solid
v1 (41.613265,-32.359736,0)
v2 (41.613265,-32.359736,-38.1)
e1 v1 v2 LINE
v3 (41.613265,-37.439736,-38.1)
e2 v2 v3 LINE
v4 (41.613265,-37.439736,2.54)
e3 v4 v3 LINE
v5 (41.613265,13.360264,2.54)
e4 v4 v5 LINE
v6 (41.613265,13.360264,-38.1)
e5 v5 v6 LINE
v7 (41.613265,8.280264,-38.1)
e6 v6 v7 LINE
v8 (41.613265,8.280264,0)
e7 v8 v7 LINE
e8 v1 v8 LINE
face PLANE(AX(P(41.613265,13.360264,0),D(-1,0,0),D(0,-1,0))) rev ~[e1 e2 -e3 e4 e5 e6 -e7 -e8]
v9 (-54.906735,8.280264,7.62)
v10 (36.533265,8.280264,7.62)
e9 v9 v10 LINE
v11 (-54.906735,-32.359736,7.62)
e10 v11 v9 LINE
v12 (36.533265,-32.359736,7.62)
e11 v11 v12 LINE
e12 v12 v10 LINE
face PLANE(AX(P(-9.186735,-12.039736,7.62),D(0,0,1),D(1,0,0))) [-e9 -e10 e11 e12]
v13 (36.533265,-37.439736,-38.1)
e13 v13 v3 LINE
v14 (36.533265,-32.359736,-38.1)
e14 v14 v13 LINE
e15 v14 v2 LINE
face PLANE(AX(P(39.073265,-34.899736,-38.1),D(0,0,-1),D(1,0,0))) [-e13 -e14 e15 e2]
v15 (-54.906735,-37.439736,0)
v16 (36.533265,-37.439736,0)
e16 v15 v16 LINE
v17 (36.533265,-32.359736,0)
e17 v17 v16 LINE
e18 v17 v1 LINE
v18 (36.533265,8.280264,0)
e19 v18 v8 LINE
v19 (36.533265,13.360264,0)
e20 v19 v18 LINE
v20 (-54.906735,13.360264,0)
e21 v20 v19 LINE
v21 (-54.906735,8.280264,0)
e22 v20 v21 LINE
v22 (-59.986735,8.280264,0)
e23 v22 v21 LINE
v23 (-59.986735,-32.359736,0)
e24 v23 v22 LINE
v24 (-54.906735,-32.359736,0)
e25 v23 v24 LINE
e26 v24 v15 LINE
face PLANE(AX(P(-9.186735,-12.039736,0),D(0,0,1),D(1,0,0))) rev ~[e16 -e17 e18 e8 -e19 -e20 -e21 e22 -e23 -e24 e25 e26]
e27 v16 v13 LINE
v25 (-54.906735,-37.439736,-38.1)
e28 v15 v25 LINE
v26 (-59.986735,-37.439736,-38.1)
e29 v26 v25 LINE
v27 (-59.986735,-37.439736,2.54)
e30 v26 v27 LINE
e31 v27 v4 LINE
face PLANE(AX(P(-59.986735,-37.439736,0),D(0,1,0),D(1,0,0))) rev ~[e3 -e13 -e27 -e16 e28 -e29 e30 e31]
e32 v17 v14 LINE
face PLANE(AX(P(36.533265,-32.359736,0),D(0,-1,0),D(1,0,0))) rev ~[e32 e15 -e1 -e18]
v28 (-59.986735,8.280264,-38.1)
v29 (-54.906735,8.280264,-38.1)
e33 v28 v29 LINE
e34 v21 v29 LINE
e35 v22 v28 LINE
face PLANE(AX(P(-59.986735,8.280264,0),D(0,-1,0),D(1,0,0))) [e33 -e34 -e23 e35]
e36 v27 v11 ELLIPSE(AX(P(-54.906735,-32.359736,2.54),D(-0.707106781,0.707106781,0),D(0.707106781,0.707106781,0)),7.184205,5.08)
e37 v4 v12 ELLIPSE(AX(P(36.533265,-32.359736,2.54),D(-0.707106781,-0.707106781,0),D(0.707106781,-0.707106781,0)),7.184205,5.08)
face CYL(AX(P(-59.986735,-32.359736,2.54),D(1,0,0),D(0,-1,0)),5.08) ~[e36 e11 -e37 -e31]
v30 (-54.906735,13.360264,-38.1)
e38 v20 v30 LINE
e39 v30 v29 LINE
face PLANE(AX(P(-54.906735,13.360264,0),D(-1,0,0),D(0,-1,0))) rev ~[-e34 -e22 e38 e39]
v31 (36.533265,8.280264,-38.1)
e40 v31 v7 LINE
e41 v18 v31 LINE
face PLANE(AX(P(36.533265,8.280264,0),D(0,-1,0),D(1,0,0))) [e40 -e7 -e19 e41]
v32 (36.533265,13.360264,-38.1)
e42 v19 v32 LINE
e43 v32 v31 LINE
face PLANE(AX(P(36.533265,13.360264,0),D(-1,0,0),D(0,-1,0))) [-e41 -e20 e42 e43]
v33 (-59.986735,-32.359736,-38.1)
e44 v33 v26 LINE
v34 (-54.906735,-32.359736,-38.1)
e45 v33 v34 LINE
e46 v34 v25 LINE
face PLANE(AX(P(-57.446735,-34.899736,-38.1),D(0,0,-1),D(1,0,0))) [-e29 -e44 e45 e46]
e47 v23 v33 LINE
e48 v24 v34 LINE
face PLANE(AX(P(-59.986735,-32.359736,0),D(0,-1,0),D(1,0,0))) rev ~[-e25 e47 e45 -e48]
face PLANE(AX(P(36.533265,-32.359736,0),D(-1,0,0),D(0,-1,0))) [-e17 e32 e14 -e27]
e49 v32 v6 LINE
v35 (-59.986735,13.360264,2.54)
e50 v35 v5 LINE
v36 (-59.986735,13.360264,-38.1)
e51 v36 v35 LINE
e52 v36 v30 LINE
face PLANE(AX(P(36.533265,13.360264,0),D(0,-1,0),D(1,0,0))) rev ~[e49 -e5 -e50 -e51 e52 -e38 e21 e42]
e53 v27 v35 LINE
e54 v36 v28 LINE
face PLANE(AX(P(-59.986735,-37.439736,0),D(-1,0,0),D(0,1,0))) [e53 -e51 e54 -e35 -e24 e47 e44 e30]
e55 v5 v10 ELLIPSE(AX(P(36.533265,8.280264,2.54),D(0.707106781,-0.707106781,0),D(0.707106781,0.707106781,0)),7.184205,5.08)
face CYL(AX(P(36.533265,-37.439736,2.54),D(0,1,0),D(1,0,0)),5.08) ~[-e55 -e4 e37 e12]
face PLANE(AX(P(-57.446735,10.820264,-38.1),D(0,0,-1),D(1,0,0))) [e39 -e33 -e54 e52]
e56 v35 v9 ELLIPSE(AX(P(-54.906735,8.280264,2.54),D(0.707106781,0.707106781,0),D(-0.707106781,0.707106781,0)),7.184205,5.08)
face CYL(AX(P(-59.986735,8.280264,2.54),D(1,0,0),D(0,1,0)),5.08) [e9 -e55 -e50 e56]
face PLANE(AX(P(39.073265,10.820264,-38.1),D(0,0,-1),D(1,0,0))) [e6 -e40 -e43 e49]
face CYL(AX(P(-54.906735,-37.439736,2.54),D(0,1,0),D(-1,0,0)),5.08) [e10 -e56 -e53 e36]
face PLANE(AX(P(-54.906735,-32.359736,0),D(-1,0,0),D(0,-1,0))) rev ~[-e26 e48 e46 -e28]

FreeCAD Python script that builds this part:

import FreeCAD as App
import Part
import Sketcher

V = App.Vector
Q = App.Units.Quantity


def edges_at(feature, points):
    """Names of the edges that pass closest to the given points."""
    edges = feature.Shape.Edges
    near = lambda p: min(range(len(edges)), key=lambda i: edges[i].distToShape(Part.Vertex(*p))[0])
    return sorted({f"Edge{near(p) + 1}" for p in points})

doc = App.newDocument("Part")
body = doc.addObject("PartDesign::Body", "Body")

sketch1 = body.newObject("Sketcher::SketchObject", "Sketch")
sketch1.AttachmentSupport = (doc.getObject("XY_Plane"), [""])
sketch1.MapMode = "FlatFace"
sketch1.addGeometry(Part.LineSegment(V(-59.986735, 13.360264, 0), V(-59.986735, -37.439736, 0)), False)
sketch1.addGeometry(Part.LineSegment(V(-59.986735, -37.439736, 0), V(41.613265, -37.439736, 0)), False)
sketch1.addGeometry(Part.LineSegment(V(41.613265, -37.439736, 0), V(41.613265, 13.360264, 0)), False)
sketch1.addGeometry(Part.LineSegment(V(41.613265, 13.360264, 0), V(-59.986735, 13.360264, 0)), False)
sketch1.addConstraint(Sketcher.Constraint("Coincident", 0, 2, 1, 1))
sketch1.addConstraint(Sketcher.Constraint("Coincident", 1, 2, 2, 1))
sketch1.addConstraint(Sketcher.Constraint("Coincident", 2, 2, 3, 1))
sketch1.addConstraint(Sketcher.Constraint("Coincident", 3, 2, 0, 1))
sketch1.addConstraint(Sketcher.Constraint("Vertical", 0))
sketch1.addConstraint(Sketcher.Constraint("Horizontal", 1))
sketch1.addConstraint(Sketcher.Constraint("Vertical", 2))
sketch1.addConstraint(Sketcher.Constraint("Horizontal", 3))
sketch1.addConstraint(Sketcher.Constraint("DistanceX", 1, 1, 1, 2, Q("4 in")))
sketch1.addConstraint(Sketcher.Constraint("DistanceY", 0, 2, 0, 1, Q("2 in")))
sketch1.addConstraint(Sketcher.Constraint("DistanceX", 0, 2, -1, 1, 59.986735))
sketch1.addConstraint(Sketcher.Constraint("DistanceY", 0, 2, -1, 1, 37.439736))
pad1 = body.newObject("PartDesign::Pad", "Pad")
pad1.Profile = sketch1
pad1.Length = Q("0.3 in")
doc.recompute()

fillet = body.newObject("PartDesign::Fillet", "Fillet")
fillet.Base = (pad1, edges_at(pad1, [
    (-9.187, -37.44, 7.62),
    (-59.987, -12.04, 7.62),
    (-9.187, 13.36, 7.62),
    (41.613, -12.04, 7.62),
]))
fillet.Radius = Q("0.2 in")

sketch2 = body.newObject("Sketcher::SketchObject", "Sketch001")
sketch2.AttachmentSupport = (doc.getObject("XY_Plane"), [""])
sketch2.MapMode = "FlatFace"
sketch2.addGeometry(Part.LineSegment(V(36.533265, 8.280264, 0), V(36.533265, 13.360264, 0)), False)
sketch2.addGeometry(Part.LineSegment(V(36.533265, 13.360264, 0), V(41.613265, 13.360264, 0)), False)
sketch2.addGeometry(Part.LineSegment(V(41.613265, 13.360264, 0), V(41.613265, 8.280264, 0)), False)
sketch2.addGeometry(Part.LineSegment(V(41.613265, 8.280264, 0), V(36.533265, 8.280264, 0)), False)
sketch2.addGeometry(Part.LineSegment(V(36.533265, -37.439736, 0), V(36.533265, -32.359736, 0)), False)
sketch2.addGeometry(Part.LineSegment(V(36.533265, -32.359736, 0), V(41.613265, -32.359736, 0)), False)
sketch2.addGeometry(Part.LineSegment(V(41.613265, -32.359736, 0), V(41.613265, -37.439736, 0)), False)
sketch2.addGeometry(Part.LineSegment(V(41.613265, -37.439736, 0), V(36.533265, -37.439736, 0)), False)
sketch2.addGeometry(Part.LineSegment(V(-59.986735, 8.280264, 0), V(-59.986735, 13.360264, 0)), False)
sketch2.addGeometry(Part.LineSegment(V(-59.986735, 13.360264, 0), V(-54.906735, 13.360264, 0)), False)
sketch2.addGeometry(Part.LineSegment(V(-54.906735, 13.360264, 0), V(-54.906735, 8.280264, 0)), False)
sketch2.addGeometry(Part.LineSegment(V(-54.906735, 8.280264, 0), V(-59.986735, 8.280264, 0)), False)
sketch2.addGeometry(Part.LineSegment(V(-59.986735, -37.439736, 0), V(-59.986735, -32.359736, 0)), False)
sketch2.addGeometry(Part.LineSegment(V(-59.986735, -32.359736, 0), V(-54.906735, -32.359736, 0)), False)
sketch2.addGeometry(Part.LineSegment(V(-54.906735, -32.359736, 0), V(-54.906735, -37.439736, 0)), False)
sketch2.addGeometry(Part.LineSegment(V(-54.906735, -37.439736, 0), V(-59.986735, -37.439736, 0)), False)
sketch2.addConstraint(Sketcher.Constraint("Coincident", 0, 2, 1, 1))
sketch2.addConstraint(Sketcher.Constraint("Coincident", 1, 2, 2, 1))
sketch2.addConstraint(Sketcher.Constraint("Coincident", 2, 2, 3, 1))
sketch2.addConstraint(Sketcher.Constraint("Coincident", 3, 2, 0, 1))
sketch2.addConstraint(Sketcher.Constraint("Coincident", 4, 2, 5, 1))
sketch2.addConstraint(Sketcher.Constraint("Coincident", 5, 2, 6, 1))
sketch2.addConstraint(Sketcher.Constraint("Coincident", 6, 2, 7, 1))
sketch2.addConstraint(Sketcher.Constraint("Coincident", 7, 2, 4, 1))
sketch2.addConstraint(Sketcher.Constraint("Coincident", 8, 2, 9, 1))
sketch2.addConstraint(Sketcher.Constraint("Coincident", 9, 2, 10, 1))
sketch2.addConstraint(Sketcher.Constraint("Coincident", 10, 2, 11, 1))
sketch2.addConstraint(Sketcher.Constraint("Coincident", 11, 2, 8, 1))
sketch2.addConstraint(Sketcher.Constraint("Coincident", 12, 2, 13, 1))
sketch2.addConstraint(Sketcher.Constraint("Coincident", 13, 2, 14, 1))
sketch2.addConstraint(Sketcher.Constraint("Coincident", 14, 2, 15, 1))
sketch2.addConstraint(Sketcher.Constraint("Coincident", 15, 2, 12, 1))
sketch2.addConstraint(Sketcher.Constraint("Vertical", 0))
sketch2.addConstraint(Sketcher.Constraint("Horizontal", 1))
sketch2.addConstraint(Sketcher.Constraint("Vertical", 2))
sketch2.addConstraint(Sketcher.Constraint("Horizontal", 3))
sketch2.addConstraint(Sketcher.Constraint("Vertical", 4))
sketch2.addConstraint(Sketcher.Constraint("Horizontal", 5))
sketch2.addConstraint(Sketcher.Constraint("Vertical", 6))
sketch2.addConstraint(Sketcher.Constraint("Horizontal", 7))
sketch2.addConstraint(Sketcher.Constraint("Vertical", 8))
sketch2.addConstraint(Sketcher.Constraint("Horizontal", 9))
sketch2.addConstraint(Sketcher.Constraint("Vertical", 10))
sketch2.addConstraint(Sketcher.Constraint("Horizontal", 11))
sketch2.addConstraint(Sketcher.Constraint("Vertical", 12))
sketch2.addConstraint(Sketcher.Constraint("Horizontal", 13))
sketch2.addConstraint(Sketcher.Constraint("Vertical", 14))
sketch2.addConstraint(Sketcher.Constraint("Horizontal", 15))
sketch2.addConstraint(Sketcher.Constraint("Horizontal", 1, 2, 8, 2))
sketch2.addConstraint(Sketcher.Constraint("Horizontal", 3, 2, 10, 2))
sketch2.addConstraint(Sketcher.Constraint("Horizontal", 5, 2, 12, 2))
sketch2.addConstraint(Sketcher.Constraint("Horizontal", 7, 2, 14, 2))
sketch2.addConstraint(Sketcher.Constraint("Vertical", 3, 2, 4, 2))
sketch2.addConstraint(Sketcher.Constraint("Vertical", 2, 2, 5, 2))
sketch2.addConstraint(Sketcher.Constraint("Vertical", 11, 2, 12, 2))
sketch2.addConstraint(Sketcher.Constraint("Vertical", 10, 2, 13, 2))
sketch2.addConstraint(Sketcher.Constraint("Equal", 7, 9))
sketch2.addConstraint(Sketcher.Constraint("Equal", 15, 0))
sketch2.addConstraint(Sketcher.Constraint("Equal", 2, 4))
sketch2.addConstraint(Sketcher.Constraint("DistanceX", 1, 1, 1, 2, Q("0.2 in")))
sketch2.addConstraint(Sketcher.Constraint("DistanceY", 6, 2, 1, 2, Q("2 in")))
sketch2.addConstraint(Sketcher.Constraint("DistanceX", 8, 2, 1, 2, Q("4 in")))
sketch2.addConstraint(Sketcher.Constraint("DistanceX", -1, 1, 0, 2, 36.533265))
sketch2.addConstraint(Sketcher.Constraint("DistanceY", -1, 1, 0, 2, 13.360264))
pad2 = body.newObject("PartDesign::Pad", "Pad001")
pad2.Profile = sketch2
pad2.Length = Q("1.5 in")
pad2.Reversed = True

doc.recompute()
